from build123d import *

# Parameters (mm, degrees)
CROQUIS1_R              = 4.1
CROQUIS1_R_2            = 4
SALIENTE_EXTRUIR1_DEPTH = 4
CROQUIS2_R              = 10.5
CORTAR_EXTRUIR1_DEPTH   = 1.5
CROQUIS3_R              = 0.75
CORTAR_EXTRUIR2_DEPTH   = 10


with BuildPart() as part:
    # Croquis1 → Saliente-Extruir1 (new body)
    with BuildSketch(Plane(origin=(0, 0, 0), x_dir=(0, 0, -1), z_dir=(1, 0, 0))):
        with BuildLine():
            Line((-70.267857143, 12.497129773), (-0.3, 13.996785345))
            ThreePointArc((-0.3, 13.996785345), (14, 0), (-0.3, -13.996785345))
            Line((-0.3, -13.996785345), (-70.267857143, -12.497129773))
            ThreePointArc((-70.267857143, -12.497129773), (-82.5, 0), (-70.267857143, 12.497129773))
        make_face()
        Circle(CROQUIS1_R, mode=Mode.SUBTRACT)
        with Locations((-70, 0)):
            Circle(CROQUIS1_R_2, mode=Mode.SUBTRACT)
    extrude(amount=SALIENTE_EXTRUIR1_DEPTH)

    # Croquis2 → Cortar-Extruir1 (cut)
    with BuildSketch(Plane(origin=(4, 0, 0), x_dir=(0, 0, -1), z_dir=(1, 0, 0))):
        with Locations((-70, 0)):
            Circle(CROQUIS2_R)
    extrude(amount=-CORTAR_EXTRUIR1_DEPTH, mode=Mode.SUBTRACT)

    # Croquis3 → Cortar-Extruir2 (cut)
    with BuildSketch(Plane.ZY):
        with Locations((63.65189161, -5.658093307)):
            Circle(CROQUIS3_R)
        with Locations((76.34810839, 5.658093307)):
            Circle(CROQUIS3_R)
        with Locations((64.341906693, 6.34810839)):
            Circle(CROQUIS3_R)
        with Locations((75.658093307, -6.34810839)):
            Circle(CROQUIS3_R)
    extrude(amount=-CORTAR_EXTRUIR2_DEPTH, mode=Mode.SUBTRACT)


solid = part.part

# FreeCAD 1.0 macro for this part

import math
import FreeCAD as App
import Part
import Sketcher
from FreeCAD import Vector

doc = App.newDocument("Part")
body = doc.addObject("PartDesign::Body", "Body")

# Sketch on YZ plane
sketch1 = doc.addObject("Sketcher::SketchObject", "Sketch")
body.addObject(sketch1)
sketch1.AttachmentSupport = (doc.YZ_Plane, [""])
sketch1.MapMode = "FlatFace"
sketch1.addGeometry(Part.LineSegment(Vector(14, 0.3, 0), Vector(12.5, 70.3, 0)), False)
sketch1.addGeometry(Part.ArcOfCircle(Part.Circle(Vector(0, 70, 0), Vector(0, 0, 1), 12.5), math.radians(1), math.radians(179)), False)
sketch1.addGeometry(Part.LineSegment(Vector(-12.5, 70.3, 0), Vector(-14, 0.3, 0)), False)
sketch1.addGeometry(Part.ArcOfCircle(Part.Circle(Vector(0, 0, 0), Vector(0, 0, 1), 14), math.radians(179), math.radians(361)), False)
sketch1.addGeometry(Part.Circle(Vector(0, 0, 0), Vector(0, 0, 1), 4.1), False)
sketch1.addGeometry(Part.Circle(Vector(0, 70, 0), Vector(0, 0, 1), 4), False)
sketch1.addConstraint(Sketcher.Constraint("Tangent", 0, 2, 1, 1))
sketch1.addConstraint(Sketcher.Constraint("Tangent", 1, 2, 2, 1))
sketch1.addConstraint(Sketcher.Constraint("Tangent", 2, 2, 3, 1))
sketch1.addConstraint(Sketcher.Constraint("Tangent", 3, 2, 0, 1))
sketch1.addConstraint(Sketcher.Constraint("Coincident", 3, 3, -1, 1))
sketch1.addConstraint(Sketcher.Constraint("Coincident", 4, 3, -1, 1))
sketch1.addConstraint(Sketcher.Constraint("Coincident", 5, 3, 1, 3))
sketch1.addConstraint(Sketcher.Constraint("PointOnObject", 1, 3, -2))
sketch1.addConstraint(Sketcher.Constraint("Diameter", 5, 8.0))
sketch1.addConstraint(Sketcher.Constraint("Radius", 3, 14.0))
sketch1.addConstraint(Sketcher.Constraint("Diameter", 4, 8.2))
sketch1.addConstraint(Sketcher.Constraint("Radius", 1, 12.5))
sketch1.addConstraint(Sketcher.Constraint("DistanceY", -1, 1, 1, 3, 70.0))
pad1 = doc.addObject("PartDesign::Pad", "Pad")
body.addObject(pad1)
pad1.Profile = sketch1
pad1.Length = 4

# Sketch on YZ plane
sketch2 = doc.addObject("Sketcher::SketchObject", "Sketch001")
body.addObject(sketch2)
sketch2.AttachmentSupport = (doc.YZ_Plane, [""])
sketch2.MapMode = "FlatFace"
sketch2.AttachmentOffset = App.Placement(Vector(0, 0, 4), App.Rotation())
sketch2.addGeometry(Part.Circle(Vector(0, 70, 0), Vector(0, 0, 1), 10), False)
sketch2.addConstraint(Sketcher.Constraint("PointOnObject", 0, 3, -2))
sketch2.addConstraint(Sketcher.Constraint("Diameter", 0, 21.0))
sketch2.addConstraint(Sketcher.Constraint("DistanceY", -1, 1, 0, 3, 70.0))
pocket1 = doc.addObject("PartDesign::Pocket", "Pocket")
body.addObject(pocket1)
pocket1.Profile = sketch2
pocket1.Length = 1.5

# Sketch on YZ plane
sketch3 = doc.addObject("Sketcher::SketchObject", "Sketch002")
body.addObject(sketch3)
sketch3.AttachmentSupport = (doc.YZ_Plane, [""])
sketch3.MapMode = "FlatFace"
sketch3.addGeometry(Part.Circle(Vector(-5.7, 63.7, 0), Vector(0, 0, 1), 0.8), False)
sketch3.addGeometry(Part.Circle(Vector(5.7, 76.3, 0), Vector(0, 0, 1), 0.8), False)
sketch3.addGeometry(Part.Circle(Vector(6.3, 64.3, 0), Vector(0, 0, 1), 0.8), False)
sketch3.addGeometry(Part.Circle(Vector(-6.3, 75.7, 0), Vector(0, 0, 1), 0.8), False)
sketch3.addConstraint(Sketcher.Constraint("Equal", 0, 1))
sketch3.addConstraint(Sketcher.Constraint("Equal", 1, 2))
sketch3.addConstraint(Sketcher.Constraint("Equal", 2, 3))
sketch3.addConstraint(Sketcher.Constraint("Diameter", 0, 1.5))
sketch3.addConstraint(Sketcher.Constraint("DistanceY", 2, 3, 1, 3, 12.006202))
sketch3.addConstraint(Sketcher.Constraint("DistanceX", 0, 3, 2, 3, 12.006202))
sketch3.addConstraint(Sketcher.Constraint("DistanceX", 3, 3, 1, 3, 12.006202))
sketch3.addConstraint(Sketcher.Constraint("DistanceY", 0, 3, 3, 3, 12.006202))
sketch3.addConstraint(Sketcher.Constraint("DistanceY", -1, 1, 0, 3, 63.651892))
sketch3.addConstraint(Sketcher.Constraint("DistanceY", -1, 1, 1, 3, 76.348108))
sketch3.addConstraint(Sketcher.Constraint("DistanceX", -1, 1, 2, 3, 6.348108))
sketch3.addConstraint(Sketcher.Constraint("DistanceX", 3, 3, -1, 1, 6.348108))
pocket2 = doc.addObject("PartDesign::Pocket", "Pocket001")
body.addObject(pocket2)
pocket2.Profile = sketch3
pocket2.Length = 10
pocket2.Reversed = True

doc.recompute()
